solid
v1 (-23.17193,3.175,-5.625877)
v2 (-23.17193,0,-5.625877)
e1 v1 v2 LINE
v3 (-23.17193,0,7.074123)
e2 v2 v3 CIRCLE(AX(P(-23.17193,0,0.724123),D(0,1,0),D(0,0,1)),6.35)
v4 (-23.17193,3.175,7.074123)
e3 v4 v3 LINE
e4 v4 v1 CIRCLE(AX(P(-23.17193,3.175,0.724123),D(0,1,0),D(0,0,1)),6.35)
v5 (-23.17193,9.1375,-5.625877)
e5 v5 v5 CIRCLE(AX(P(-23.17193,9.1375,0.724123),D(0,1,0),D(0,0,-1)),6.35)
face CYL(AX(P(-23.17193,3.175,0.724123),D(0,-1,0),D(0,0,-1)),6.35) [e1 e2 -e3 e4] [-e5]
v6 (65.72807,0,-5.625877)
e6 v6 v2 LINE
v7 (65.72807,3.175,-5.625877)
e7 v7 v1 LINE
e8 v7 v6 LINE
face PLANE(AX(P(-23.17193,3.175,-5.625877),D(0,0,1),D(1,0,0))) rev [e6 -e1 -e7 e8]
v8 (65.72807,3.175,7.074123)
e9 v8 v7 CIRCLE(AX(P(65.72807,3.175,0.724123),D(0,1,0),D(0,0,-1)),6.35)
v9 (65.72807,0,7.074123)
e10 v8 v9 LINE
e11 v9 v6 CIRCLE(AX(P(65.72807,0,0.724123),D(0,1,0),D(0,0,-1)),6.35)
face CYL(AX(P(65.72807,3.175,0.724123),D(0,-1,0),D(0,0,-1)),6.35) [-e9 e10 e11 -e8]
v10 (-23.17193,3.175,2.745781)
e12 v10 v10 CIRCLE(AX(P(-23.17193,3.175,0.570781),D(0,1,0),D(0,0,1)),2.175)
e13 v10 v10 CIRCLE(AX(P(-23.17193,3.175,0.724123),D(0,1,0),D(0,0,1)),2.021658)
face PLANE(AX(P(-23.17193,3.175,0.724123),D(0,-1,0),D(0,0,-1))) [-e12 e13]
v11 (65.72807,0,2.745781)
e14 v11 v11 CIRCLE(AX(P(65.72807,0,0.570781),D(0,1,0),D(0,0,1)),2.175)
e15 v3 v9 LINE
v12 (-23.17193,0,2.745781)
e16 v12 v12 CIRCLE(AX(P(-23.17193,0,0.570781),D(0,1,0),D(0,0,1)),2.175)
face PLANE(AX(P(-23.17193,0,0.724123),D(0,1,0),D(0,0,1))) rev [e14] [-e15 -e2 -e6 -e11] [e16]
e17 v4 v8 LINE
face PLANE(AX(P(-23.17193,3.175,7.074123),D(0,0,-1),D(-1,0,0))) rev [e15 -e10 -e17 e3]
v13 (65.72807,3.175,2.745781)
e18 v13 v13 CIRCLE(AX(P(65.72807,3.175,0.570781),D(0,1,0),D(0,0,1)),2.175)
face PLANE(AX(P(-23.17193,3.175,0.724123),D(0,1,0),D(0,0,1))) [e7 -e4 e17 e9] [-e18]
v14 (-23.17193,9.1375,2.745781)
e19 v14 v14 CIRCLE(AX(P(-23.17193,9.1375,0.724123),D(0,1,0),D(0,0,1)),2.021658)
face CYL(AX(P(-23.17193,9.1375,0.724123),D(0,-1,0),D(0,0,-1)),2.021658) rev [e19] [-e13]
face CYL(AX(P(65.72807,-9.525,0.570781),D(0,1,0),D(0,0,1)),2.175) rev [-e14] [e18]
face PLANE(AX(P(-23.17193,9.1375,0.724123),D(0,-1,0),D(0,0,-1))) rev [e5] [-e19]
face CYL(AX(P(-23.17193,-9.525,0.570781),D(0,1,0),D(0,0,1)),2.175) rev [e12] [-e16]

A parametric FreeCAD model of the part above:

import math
import FreeCAD as App
import Part
import Sketcher

V = App.Vector
Q = App.Units.Quantity

doc = App.newDocument("Part")
body = doc.addObject("PartDesign::Body", "Body")

sketch1 = doc.addObject("Sketcher::SketchObject", "Sketch")
body.addObject(sketch1)
sketch1.AttachmentSupport = (doc.XZ_Plane, [""])
sketch1.MapMode = "FlatFace"
sketch1.addGeometry([
    Part.LineSegment(V(66, -6, 0), V(-23, -6, 0)),
    Part.ArcOfCircle(Part.Circle(V(-23, 1, 0), V(0, 0, 1), 6), math.radians(90), math.radians(270)),
    Part.LineSegment(V(-23, 7, 0), V(66, 7, 0)),
    Part.ArcOfCircle(Part.Circle(V(66, 1, 0), V(0, 0, 1), 6), math.radians(-90), math.radians(90)),
], False)
sketch1.addConstraint([
    Sketcher.Constraint("Tangent", 0, 2, 1, 2),
    Sketcher.Constraint("Tangent", 1, 1, 2, 1),
    Sketcher.Constraint("Tangent", 2, 2, 3, 2),
    Sketcher.Constraint("Tangent", 3, 1, 0, 1),
    Sketcher.Constraint("Horizontal", 0),
    Sketcher.Constraint("Horizontal", 2),
    Sketcher.Constraint("Radius", 1, Q("0.25 in")),
    Sketcher.Constraint("DistanceX", 0, 2, 0, 1, Q("3.5 in")),
    Sketcher.Constraint("DistanceX", 1, 3, -1, 1, Q("23.17193 mm")),
    Sketcher.Constraint("DistanceY", -1, 1, 1, 3, Q("0.724123 mm")),
])
pad1 = doc.addObject("PartDesign::Pad", "Pad")
body.addObject(pad1)
pad1.Profile = sketch1
pad1.Length = Q("0.125 in")
pad1.Reversed = True

sketch2 = doc.addObject("Sketcher::SketchObject", "Sketch001")
body.addObject(sketch2)
sketch2.AttachmentSupport = (doc.XZ_Plane, [""])
sketch2.MapMode = "FlatFace"
sketch2.AttachmentOffset = App.Placement(V(0, 0, -0.125 * 25.4), App.Rotation())
sketch2.addGeometry([
    Part.Circle(V(-23.2, 0.6, 0), V(0, 0, 1), 2.2),
    Part.Circle(V(65.7, 0.6, 0), V(0, 0, 1), 2.2),
], False)
sketch2.addConstraint([
    Sketcher.Constraint("Equal", 0, 1),
    Sketcher.Constraint("Horizontal", 0, 3, 1, 3),
    Sketcher.Constraint("DistanceX", 0, 3, 1, 3, Q("3.5 in")),
    Sketcher.Constraint("Diameter", 0, Q("4.35 mm")),
    Sketcher.Constraint("DistanceX", 0, 3, -1, 1, Q("23.17193 mm")),
    Sketcher.Constraint("DistanceY", -1, 1, 0, 3, Q("0.570781 mm")),
])
pocket1 = doc.addObject("PartDesign::Pocket", "Pocket")
body.addObject(pocket1)
pocket1.Profile = sketch2
pocket1.Length = Q("0.5 in")
pocket1.Reversed = True

sketch3 = doc.addObject("Sketcher::SketchObject", "Sketch002")
body.addObject(sketch3)
sketch3.AttachmentSupport = (doc.XZ_Plane, [""])
sketch3.MapMode = "FlatFace"
sketch3.AttachmentOffset = App.Placement(V(0, 0, -0.125 * 25.4), App.Rotation())
sketch3.addGeometry([
    Part.Circle(V(-23.2, 0.7, 0), V(0, 0, 1), 6.3),
    Part.Circle(V(-23.2, 0.7, 0), V(0, 0, 1), 2),
], False)
sketch3.addConstraint([
    Sketcher.Constraint("Coincident", 1, 3, 0, 3),
    Sketcher.Constraint("Diameter", 0, Q("0.5 in")),
    Sketcher.Constraint("Diameter", 1, Q("4.043316 mm")),
    Sketcher.Constraint("DistanceX", 0, 3, -1, 1, Q("23.17193 mm")),
    Sketcher.Constraint("DistanceY", -1, 1, 0, 3, Q("0.724123 mm")),
])
pad2 = doc.addObject("PartDesign::Pad", "Pad001")
body.addObject(pad2)
pad2.Profile = sketch3
pad2.Length = 5.9625
pad2.Reversed = True

doc.recompute()
